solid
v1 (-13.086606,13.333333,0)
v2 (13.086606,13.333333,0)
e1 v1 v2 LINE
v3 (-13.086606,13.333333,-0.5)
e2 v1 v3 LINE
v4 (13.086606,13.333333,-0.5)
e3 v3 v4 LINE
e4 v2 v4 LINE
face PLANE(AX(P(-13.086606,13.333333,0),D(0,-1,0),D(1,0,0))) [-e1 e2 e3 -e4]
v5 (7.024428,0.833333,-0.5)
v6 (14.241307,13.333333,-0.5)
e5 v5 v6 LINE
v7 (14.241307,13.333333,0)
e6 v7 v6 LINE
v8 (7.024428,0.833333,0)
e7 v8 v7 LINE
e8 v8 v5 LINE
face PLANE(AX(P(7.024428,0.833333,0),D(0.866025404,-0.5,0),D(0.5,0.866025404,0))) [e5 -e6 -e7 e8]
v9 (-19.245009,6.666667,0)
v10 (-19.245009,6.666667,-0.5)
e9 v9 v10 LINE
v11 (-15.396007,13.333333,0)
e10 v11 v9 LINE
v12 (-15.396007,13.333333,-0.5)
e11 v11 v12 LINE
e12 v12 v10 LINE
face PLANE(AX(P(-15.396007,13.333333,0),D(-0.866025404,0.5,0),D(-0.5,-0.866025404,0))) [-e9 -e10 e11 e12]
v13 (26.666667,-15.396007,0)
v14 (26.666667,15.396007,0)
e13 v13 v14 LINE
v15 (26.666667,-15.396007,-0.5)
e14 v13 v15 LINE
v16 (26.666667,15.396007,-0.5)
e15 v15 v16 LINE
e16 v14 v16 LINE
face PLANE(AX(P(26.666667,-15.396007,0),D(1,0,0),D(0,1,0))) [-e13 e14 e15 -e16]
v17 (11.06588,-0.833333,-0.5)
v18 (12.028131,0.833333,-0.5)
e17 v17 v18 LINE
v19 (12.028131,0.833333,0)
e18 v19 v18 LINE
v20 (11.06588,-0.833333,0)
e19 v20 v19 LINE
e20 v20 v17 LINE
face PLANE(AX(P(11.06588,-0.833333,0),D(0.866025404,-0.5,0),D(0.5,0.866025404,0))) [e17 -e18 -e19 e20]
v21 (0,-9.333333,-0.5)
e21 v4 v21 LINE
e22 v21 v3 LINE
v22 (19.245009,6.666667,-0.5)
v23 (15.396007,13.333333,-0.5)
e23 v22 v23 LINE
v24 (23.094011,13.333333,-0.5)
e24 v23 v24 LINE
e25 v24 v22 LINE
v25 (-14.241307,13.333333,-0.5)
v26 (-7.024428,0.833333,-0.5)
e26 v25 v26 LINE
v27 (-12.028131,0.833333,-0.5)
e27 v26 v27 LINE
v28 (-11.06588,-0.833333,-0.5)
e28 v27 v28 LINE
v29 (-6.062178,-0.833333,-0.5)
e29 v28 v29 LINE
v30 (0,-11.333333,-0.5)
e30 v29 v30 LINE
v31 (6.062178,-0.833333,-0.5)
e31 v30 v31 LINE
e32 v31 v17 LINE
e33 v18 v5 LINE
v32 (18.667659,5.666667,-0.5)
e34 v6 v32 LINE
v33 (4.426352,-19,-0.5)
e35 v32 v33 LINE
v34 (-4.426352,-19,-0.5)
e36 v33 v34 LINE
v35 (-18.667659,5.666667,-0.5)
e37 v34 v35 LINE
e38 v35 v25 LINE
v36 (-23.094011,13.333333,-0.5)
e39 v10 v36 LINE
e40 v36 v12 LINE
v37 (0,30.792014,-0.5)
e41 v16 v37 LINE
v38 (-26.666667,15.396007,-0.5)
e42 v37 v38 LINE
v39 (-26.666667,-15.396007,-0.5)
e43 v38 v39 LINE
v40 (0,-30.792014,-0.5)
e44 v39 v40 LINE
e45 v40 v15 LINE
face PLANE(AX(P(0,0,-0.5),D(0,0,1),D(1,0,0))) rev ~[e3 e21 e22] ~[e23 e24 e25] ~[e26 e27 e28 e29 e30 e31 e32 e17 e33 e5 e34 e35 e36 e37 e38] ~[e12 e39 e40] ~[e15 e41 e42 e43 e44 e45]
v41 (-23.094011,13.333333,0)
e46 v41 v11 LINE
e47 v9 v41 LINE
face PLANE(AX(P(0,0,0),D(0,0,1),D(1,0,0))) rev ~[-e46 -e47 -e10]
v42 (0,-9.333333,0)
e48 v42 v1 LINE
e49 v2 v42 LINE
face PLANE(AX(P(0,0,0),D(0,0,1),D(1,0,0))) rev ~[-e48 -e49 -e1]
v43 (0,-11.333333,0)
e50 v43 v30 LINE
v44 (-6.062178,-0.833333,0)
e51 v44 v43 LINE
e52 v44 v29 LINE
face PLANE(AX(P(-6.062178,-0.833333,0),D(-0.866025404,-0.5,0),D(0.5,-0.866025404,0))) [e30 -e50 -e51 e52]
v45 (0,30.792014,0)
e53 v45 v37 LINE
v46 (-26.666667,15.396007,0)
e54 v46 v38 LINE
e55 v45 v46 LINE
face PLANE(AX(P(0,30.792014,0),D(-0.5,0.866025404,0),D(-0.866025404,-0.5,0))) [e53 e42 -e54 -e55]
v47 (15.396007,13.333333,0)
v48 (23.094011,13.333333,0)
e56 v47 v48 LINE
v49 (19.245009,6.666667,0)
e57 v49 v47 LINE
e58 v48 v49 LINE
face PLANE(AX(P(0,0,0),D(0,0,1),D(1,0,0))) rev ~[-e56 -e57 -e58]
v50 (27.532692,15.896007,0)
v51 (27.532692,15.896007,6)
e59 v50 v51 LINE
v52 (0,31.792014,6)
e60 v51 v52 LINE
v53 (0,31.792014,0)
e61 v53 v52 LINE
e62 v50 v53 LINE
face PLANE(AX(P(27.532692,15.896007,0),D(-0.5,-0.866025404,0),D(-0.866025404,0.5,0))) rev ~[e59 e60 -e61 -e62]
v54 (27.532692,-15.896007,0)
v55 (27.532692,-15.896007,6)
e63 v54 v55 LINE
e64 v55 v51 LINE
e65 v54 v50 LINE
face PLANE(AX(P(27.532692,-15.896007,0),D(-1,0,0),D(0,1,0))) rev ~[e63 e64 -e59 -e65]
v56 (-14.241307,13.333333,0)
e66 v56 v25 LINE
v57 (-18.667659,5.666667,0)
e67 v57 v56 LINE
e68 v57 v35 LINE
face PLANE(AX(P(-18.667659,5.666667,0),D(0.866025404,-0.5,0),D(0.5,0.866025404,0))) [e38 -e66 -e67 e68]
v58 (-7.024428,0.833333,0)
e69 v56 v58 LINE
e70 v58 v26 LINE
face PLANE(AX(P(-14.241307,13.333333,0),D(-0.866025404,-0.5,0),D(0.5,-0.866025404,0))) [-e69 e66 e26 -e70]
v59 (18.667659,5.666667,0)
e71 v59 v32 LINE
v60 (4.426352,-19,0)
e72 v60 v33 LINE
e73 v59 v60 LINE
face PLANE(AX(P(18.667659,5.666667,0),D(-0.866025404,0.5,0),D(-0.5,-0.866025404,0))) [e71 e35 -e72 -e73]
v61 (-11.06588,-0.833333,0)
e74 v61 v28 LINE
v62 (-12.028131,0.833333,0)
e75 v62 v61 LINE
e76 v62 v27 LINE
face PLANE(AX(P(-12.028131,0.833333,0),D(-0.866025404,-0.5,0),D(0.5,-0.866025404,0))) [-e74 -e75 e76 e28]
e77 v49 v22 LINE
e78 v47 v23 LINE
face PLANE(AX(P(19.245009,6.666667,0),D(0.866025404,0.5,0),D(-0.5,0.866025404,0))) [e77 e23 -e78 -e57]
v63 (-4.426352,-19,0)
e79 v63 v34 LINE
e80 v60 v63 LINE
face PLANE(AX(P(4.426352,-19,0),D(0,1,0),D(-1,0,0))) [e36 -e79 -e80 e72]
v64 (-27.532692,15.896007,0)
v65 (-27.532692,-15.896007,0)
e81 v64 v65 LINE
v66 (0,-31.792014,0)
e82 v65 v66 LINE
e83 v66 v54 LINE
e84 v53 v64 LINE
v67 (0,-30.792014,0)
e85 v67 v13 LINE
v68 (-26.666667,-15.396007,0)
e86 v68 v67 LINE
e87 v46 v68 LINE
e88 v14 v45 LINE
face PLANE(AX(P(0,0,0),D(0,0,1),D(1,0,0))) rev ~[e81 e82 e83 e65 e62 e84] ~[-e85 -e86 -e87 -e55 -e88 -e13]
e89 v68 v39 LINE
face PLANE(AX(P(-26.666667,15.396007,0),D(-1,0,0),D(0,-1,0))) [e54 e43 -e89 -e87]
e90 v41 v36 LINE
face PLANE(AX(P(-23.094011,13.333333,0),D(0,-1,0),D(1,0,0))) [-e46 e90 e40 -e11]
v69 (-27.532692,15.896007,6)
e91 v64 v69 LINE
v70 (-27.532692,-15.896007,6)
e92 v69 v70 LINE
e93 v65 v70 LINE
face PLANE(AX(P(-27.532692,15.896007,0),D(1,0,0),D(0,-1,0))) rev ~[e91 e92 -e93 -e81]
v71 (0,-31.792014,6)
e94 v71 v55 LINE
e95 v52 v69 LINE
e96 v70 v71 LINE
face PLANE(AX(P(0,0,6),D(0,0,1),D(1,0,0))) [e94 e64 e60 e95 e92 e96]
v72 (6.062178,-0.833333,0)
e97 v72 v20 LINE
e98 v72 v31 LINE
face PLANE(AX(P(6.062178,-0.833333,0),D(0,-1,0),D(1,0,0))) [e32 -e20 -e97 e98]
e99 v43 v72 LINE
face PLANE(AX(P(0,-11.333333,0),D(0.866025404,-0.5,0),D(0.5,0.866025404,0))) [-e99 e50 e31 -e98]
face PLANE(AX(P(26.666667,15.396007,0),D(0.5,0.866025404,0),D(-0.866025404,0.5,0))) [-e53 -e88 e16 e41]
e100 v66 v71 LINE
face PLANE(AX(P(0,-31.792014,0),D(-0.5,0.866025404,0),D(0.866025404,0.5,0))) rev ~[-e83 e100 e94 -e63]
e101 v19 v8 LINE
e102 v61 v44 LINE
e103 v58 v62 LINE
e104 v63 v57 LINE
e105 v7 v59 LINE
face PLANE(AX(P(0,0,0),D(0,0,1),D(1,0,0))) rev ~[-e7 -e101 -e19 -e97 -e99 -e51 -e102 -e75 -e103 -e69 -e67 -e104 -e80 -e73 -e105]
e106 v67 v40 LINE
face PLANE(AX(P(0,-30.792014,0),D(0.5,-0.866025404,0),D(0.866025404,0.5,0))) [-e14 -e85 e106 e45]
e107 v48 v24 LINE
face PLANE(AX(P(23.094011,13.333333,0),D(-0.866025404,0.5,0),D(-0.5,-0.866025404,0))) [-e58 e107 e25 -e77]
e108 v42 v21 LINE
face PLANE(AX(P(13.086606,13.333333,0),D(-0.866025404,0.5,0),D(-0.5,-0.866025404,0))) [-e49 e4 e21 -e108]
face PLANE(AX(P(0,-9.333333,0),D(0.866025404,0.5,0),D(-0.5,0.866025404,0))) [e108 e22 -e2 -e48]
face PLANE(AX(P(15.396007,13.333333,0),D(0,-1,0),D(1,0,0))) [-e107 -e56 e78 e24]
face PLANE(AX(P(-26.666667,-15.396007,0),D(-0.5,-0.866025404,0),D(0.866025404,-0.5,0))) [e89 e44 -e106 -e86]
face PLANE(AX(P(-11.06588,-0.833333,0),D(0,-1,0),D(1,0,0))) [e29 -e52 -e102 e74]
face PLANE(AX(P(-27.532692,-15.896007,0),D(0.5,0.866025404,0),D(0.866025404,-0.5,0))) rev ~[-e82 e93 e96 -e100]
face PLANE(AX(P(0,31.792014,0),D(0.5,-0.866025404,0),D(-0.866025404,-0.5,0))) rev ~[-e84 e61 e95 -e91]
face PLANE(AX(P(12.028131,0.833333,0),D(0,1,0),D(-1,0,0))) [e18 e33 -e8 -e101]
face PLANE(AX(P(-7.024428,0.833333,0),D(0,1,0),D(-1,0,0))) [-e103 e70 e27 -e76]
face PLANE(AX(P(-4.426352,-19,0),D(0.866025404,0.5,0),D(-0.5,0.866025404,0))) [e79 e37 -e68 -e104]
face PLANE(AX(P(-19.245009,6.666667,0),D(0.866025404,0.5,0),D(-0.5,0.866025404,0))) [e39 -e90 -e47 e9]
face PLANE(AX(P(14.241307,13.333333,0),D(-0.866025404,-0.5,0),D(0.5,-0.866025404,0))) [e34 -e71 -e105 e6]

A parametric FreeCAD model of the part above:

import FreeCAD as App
import Part
import Sketcher

V = App.Vector
Q = App.Units.Quantity

doc = App.newDocument("Part")
body = doc.addObject("PartDesign::Body", "Body")

sketch1 = body.newObject("Sketcher::SketchObject", "Sketch")
sketch1.AttachmentSupport = (doc.getObject("XY_Plane"), [""])
sketch1.MapMode = "FlatFace"
sketch1.addGeometry([
    Part.LineSegment(V(27.532692, 15.896007, 0), V(0, 31.792014, 0)),
    Part.LineSegment(V(0, 31.792014, 0), V(-27.532692, 15.896007, 0)),
    Part.LineSegment(V(-27.532692, 15.896007, 0), V(-27.532692, -15.896007, 0)),
    Part.LineSegment(V(-27.532692, -15.896007, 0), V(0, -31.792014, 0)),
    Part.LineSegment(V(0, -31.792014, 0), V(27.532692, -15.896007, 0)),
    Part.LineSegment(V(27.532692, -15.896007, 0), V(27.532692, 15.896007, 0)),
], False)
sketch1.addConstraint([
    Sketcher.Constraint("Coincident", 0, 2, 1, 1),
    Sketcher.Constraint("Coincident", 1, 2, 2, 1),
    Sketcher.Constraint("Coincident", 2, 2, 3, 1),
    Sketcher.Constraint("Coincident", 3, 2, 4, 1),
    Sketcher.Constraint("Coincident", 4, 2, 5, 1),
    Sketcher.Constraint("Coincident", 5, 2, 0, 1),
    Sketcher.Constraint("Vertical", 2),
    Sketcher.Constraint("Vertical", 5),
    Sketcher.Constraint("Symmetric", 0, 2, 3, 2, -1, 1),
    Sketcher.Constraint("Symmetric", 1, 2, 4, 2, -1, 1),
    Sketcher.Constraint("PointOnObject", 0, 2, -2),
    Sketcher.Constraint("Parallel", 0, 3),
    Sketcher.Constraint("Horizontal", 2, 2, 4, 2),
    Sketcher.Constraint("Angle", 0, Q("150 deg")),
    Sketcher.Constraint("DistanceY", 2, 2, 2, 1, Q("31.792014 mm")),
    Sketcher.Constraint("DistanceY", 2, 2, 0, 2, Q("47.688022 mm")),
])
pad1 = body.newObject("PartDesign::Pad", "Pad")
pad1.Profile = sketch1
pad1.Length = 6

sketch2 = body.newObject("Sketcher::SketchObject", "Sketch001")
sketch2.AttachmentSupport = (doc.getObject("XY_Plane"), [""])
sketch2.MapMode = "FlatFace"
sketch2.addGeometry([
    Part.LineSegment(V(26.666667, 15.396007, 0), V(0, 30.792014, 0)),
    Part.LineSegment(V(0, 30.792014, 0), V(-26.666667, 15.396007, 0)),
    Part.LineSegment(V(-26.666667, 15.396007, 0), V(-26.666667, -15.396007, 0)),
    Part.LineSegment(V(-26.666667, -15.396007, 0), V(0, -30.792014, 0)),
    Part.LineSegment(V(0, -30.792014, 0), V(26.666667, -15.396007, 0)),
    Part.LineSegment(V(26.666667, -15.396007, 0), V(26.666667, 15.396007, 0)),
    Part.LineSegment(V(11.06588, -0.833333, 0), V(12.028131, 0.833333, 0)),
    Part.LineSegment(V(12.028131, 0.833333, 0), V(7.024428, 0.833333, 0)),
    Part.LineSegment(V(7.024428, 0.833333, 0), V(14.241307, 13.333333, 0)),
    Part.LineSegment(V(14.241307, 13.333333, 0), V(18.667659, 5.666667, 0)),
    Part.LineSegment(V(18.667659, 5.666667, 0), V(4.426352, -19, 0)),
    Part.LineSegment(V(4.426352, -19, 0), V(-4.426352, -19, 0)),
    Part.LineSegment(V(-4.426352, -19, 0), V(-18.667659, 5.666667, 0)),
    Part.LineSegment(V(-18.667659, 5.666667, 0), V(-14.241307, 13.333333, 0)),
    Part.LineSegment(V(-14.241307, 13.333333, 0), V(-7.024428, 0.833333, 0)),
    Part.LineSegment(V(-7.024428, 0.833333, 0), V(-12.028131, 0.833333, 0)),
    Part.LineSegment(V(-12.028131, 0.833333, 0), V(-11.06588, -0.833333, 0)),
    Part.LineSegment(V(-11.06588, -0.833333, 0), V(-6.062178, -0.833333, 0)),
    Part.LineSegment(V(-6.062178, -0.833333, 0), V(0, -11.333333, 0)),
    Part.LineSegment(V(0, -11.333333, 0), V(6.062178, -0.833333, 0)),
    Part.LineSegment(V(6.062178, -0.833333, 0), V(11.06588, -0.833333, 0)),
    Part.LineSegment(V(13.086606, 13.333333, 0), V(0, -9.333333, 0)),
    Part.LineSegment(V(0, -9.333333, 0), V(-13.086606, 13.333333, 0)),
    Part.LineSegment(V(-13.086606, 13.333333, 0), V(13.086606, 13.333333, 0)),
    Part.LineSegment(V(-23.094011, 13.333333, 0), V(-15.396007, 13.333333, 0)),
    Part.LineSegment(V(-15.396007, 13.333333, 0), V(-19.245009, 6.666667, 0)),
    Part.LineSegment(V(-19.245009, 6.666667, 0), V(-23.094011, 13.333333, 0)),
    Part.LineSegment(V(15.396007, 13.333333, 0), V(23.094011, 13.333333, 0)),
    Part.LineSegment(V(23.094011, 13.333333, 0), V(19.245009, 6.666667, 0)),
    Part.LineSegment(V(19.245009, 6.666667, 0), V(15.396007, 13.333333, 0)),
], False)
sketch2.addConstraint([
    Sketcher.Constraint("Coincident", 0, 2, 1, 1),
    Sketcher.Constraint("Coincident", 1, 2, 2, 1),
    Sketcher.Constraint("Coincident", 2, 2, 3, 1),
    Sketcher.Constraint("Coincident", 3, 2, 4, 1),
    Sketcher.Constraint("Coincident", 4, 2, 5, 1),
    Sketcher.Constraint("Coincident", 5, 2, 0, 1),
    Sketcher.Constraint("Coincident", 6, 2, 7, 1),
    Sketcher.Constraint("Coincident", 7, 2, 8, 1),
    Sketcher.Constraint("Coincident", 8, 2, 9, 1),
    Sketcher.Constraint("Coincident", 9, 2, 10, 1),
    Sketcher.Constraint("Coincident", 10, 2, 11, 1),
    Sketcher.Constraint("Coincident", 11, 2, 12, 1),
    Sketcher.Constraint("Coincident", 12, 2, 13, 1),
    Sketcher.Constraint("Coincident", 13, 2, 14, 1),
    Sketcher.Constraint("Coincident", 14, 2, 15, 1),
    Sketcher.Constraint("Coincident", 15, 2, 16, 1),
    Sketcher.Constraint("Coincident", 16, 2, 17, 1),
    Sketcher.Constraint("Coincident", 17, 2, 18, 1),
    Sketcher.Constraint("Coincident", 18, 2, 19, 1),
    Sketcher.Constraint("Coincident", 19, 2, 20, 1),
    Sketcher.Constraint("Coincident", 20, 2, 6, 1),
    Sketcher.Constraint("Coincident", 21, 2, 22, 1),
    Sketcher.Constraint("Coincident", 22, 2, 23, 1),
    Sketcher.Constraint("Coincident", 23, 2, 21, 1),
    Sketcher.Constraint("Coincident", 24, 2, 25, 1),
    Sketcher.Constraint("Coincident", 25, 2, 26, 1),
    Sketcher.Constraint("Coincident", 26, 2, 24, 1),
    Sketcher.Constraint("Coincident", 27, 2, 28, 1),
    Sketcher.Constraint("Coincident", 28, 2, 29, 1),
    Sketcher.Constraint("Coincident", 29, 2, 27, 1),
    Sketcher.Constraint("Vertical", 2),
    Sketcher.Constraint("Vertical", 5),
    Sketcher.Constraint("Horizontal", 7),
    Sketcher.Constraint("Horizontal", 11),
    Sketcher.Constraint("Horizontal", 15),
    Sketcher.Constraint("Horizontal", 17),
    Sketcher.Constraint("Horizontal", 20),
    Sketcher.Constraint("Horizontal", 23),
    Sketcher.Constraint("Horizontal", 24),
    Sketcher.Constraint("Horizontal", 27),
    Sketcher.Constraint("Symmetric", 0, 2, 3, 2, -1, 1),
    Sketcher.Constraint("Symmetric", 1, 2, 4, 2, -1, 1),
    Sketcher.Constraint("Symmetric", 9, 2, 12, 2, -2),
    Sketcher.Constraint("Symmetric", 8, 2, 13, 2, -2),
    Sketcher.Constraint("Symmetric", 7, 2, 14, 2, -2),
    Sketcher.Constraint("Symmetric", 17, 2, 19, 2, -2),
    Sketcher.Constraint("Symmetric", 26, 2, 27, 2, -2),
    Sketcher.Constraint("Symmetric", 25, 2, 28, 2, -2),
    Sketcher.Constraint("PointOnObject", 0, 2, -2),
    Sketcher.Constraint("PointOnObject", 18, 2, -2),
    Sketcher.Constraint("PointOnObject", 21, 2, -2),
    Sketcher.Constraint("Parallel", 0, 3),
    Sketcher.Constraint("Perpendicular", 3, 6),
    Sketcher.Constraint("Parallel", 6, 8),
    Sketcher.Constraint("Perpendicular", 4, 9),
    Sketcher.Constraint("Parallel", 8, 10),
    Sketcher.Constraint("Parallel", 9, 12),
    Sketcher.Constraint("Parallel", 10, 13),
    Sketcher.Constraint("Parallel", 14, 16),
    Sketcher.Constraint("Parallel", 16, 18),
    Sketcher.Constraint("Parallel", 19, 21),
    Sketcher.Constraint("Parallel", 18, 22),
    Sketcher.Constraint("Parallel", 21, 25),
    Sketcher.Constraint("Parallel", 22, 26),
    Sketcher.Constraint("Parallel", 26, 29),
    Sketcher.Constraint("Horizontal", 13, 2, 22, 2),
    Sketcher.Constraint("Horizontal", 23, 2, 24, 2),
    Sketcher.Constraint("Equal", 7, 15),
    Sketcher.Constraint("Equal", 15, 17),
    Sketcher.Constraint("Angle", 0, Q("150 deg")),
    Sketcher.Constraint("DistanceY", 10, 2, -1, 1, Q("19 mm")),
    Sketcher.Constraint("DistanceY", 18, 2, 21, 2, Q("2 mm")),
    Sketcher.Constraint("DistanceY", 12, 2, 25, 2, Q("1 mm")),
    Sketcher.Constraint("DistanceY", 6, 2, 8, 2, Q("12.5 mm")),
    Sketcher.Constraint("DistanceY", 16, 2, 12, 2, Q("6.5 mm")),
    Sketcher.Constraint("DistanceY", 18, 2, 17, 2, Q("10.5 mm")),
    Sketcher.Constraint("DistanceX", 25, 2, 24, 2, Q("3.849002 mm")),
    Sketcher.Constraint("DistanceX", 24, 2, 13, 2, Q("1.154701 mm")),
    Sketcher.Constraint("DistanceX", 7, 2, 7, 1, Q("5.003702 mm")),
    Sketcher.Constraint("DistanceX", 11, 2, 11, 1, Q("8.852704 mm")),
    Sketcher.Constraint("DistanceY", 2, 2, 2, 1, Q("30.792014 mm")),
    Sketcher.Constraint("DistanceY", 2, 2, 0, 2, Q("46.188022 mm")),
])
pad2 = body.newObject("PartDesign::Pad", "Pad001")
pad2.Profile = sketch2
pad2.Length = 0.5
pad2.Reversed = True

doc.recompute()
